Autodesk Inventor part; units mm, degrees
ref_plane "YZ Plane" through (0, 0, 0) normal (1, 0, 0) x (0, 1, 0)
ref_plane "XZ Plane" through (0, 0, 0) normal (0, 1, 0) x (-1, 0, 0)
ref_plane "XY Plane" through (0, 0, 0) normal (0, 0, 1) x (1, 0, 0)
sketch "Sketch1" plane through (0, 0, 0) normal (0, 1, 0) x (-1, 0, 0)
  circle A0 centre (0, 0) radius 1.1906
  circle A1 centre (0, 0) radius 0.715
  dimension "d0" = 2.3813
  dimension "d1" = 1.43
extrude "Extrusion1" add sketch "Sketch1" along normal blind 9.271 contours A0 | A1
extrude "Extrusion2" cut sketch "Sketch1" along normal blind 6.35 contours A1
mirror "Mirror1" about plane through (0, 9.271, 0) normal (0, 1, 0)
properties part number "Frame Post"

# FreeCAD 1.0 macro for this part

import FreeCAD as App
import Part
import Sketcher

V = App.Vector
Q = App.Units.Quantity

doc = App.newDocument("Part")
body = doc.addObject("PartDesign::Body", "Body")

# Sketch on XZ plane
sketch1 = body.newObject("Sketcher::SketchObject", "Sketch")
sketch1.AttachmentSupport = (doc.getObject("XZ_Plane"), [""])
sketch1.MapMode = "FlatFace"
sketch1.addGeometry(Part.Circle(V(0, 0, 0), V(0, 0, 1), 1.2), False)
sketch1.addConstraint(Sketcher.Constraint("Coincident", 0, 3, -1, 1))
sketch1.addConstraint(Sketcher.Constraint("Diameter", 0, Q("0.093748 in")))
pad1 = body.newObject("PartDesign::Pad", "Pad")
pad1.Profile = sketch1
pad1.Length = Q("0.365 in")
pad1.Reversed = True

# Sketch on XZ plane
sketch2 = body.newObject("Sketcher::SketchObject", "Sketch001")
sketch2.AttachmentSupport = (doc.getObject("XZ_Plane"), [""])
sketch2.MapMode = "FlatFace"
sketch2.addGeometry(Part.Circle(V(0, 0, 0), V(0, 0, 1), 0.7), False)
sketch2.addConstraint(Sketcher.Constraint("Coincident", 0, 3, -1, 1))
sketch2.addConstraint(Sketcher.Constraint("Diameter", 0, Q("0.0563 in")))
pocket1 = body.newObject("PartDesign::Pocket", "Pocket")
pocket1.Profile = sketch2
pocket1.Length = Q("0.25 in")
doc.recompute()

datumplane = body.newObject("PartDesign::Plane", "DatumPlane")
datumplane.AttachmentSupport = (doc.getObject("XZ_Plane"), [""])
datumplane.MapMode = "FlatFace"
datumplane.AttachmentOffset = App.Placement(V(0, 0, -0.365 * 25.4), App.Rotation())
mirrored = body.newObject("PartDesign::Mirrored", "Mirrored")
mirrored.TransformMode = "Transform body"
mirrored.MirrorPlane = (datumplane, [""])
body.Tip = mirrored

doc.recompute()
